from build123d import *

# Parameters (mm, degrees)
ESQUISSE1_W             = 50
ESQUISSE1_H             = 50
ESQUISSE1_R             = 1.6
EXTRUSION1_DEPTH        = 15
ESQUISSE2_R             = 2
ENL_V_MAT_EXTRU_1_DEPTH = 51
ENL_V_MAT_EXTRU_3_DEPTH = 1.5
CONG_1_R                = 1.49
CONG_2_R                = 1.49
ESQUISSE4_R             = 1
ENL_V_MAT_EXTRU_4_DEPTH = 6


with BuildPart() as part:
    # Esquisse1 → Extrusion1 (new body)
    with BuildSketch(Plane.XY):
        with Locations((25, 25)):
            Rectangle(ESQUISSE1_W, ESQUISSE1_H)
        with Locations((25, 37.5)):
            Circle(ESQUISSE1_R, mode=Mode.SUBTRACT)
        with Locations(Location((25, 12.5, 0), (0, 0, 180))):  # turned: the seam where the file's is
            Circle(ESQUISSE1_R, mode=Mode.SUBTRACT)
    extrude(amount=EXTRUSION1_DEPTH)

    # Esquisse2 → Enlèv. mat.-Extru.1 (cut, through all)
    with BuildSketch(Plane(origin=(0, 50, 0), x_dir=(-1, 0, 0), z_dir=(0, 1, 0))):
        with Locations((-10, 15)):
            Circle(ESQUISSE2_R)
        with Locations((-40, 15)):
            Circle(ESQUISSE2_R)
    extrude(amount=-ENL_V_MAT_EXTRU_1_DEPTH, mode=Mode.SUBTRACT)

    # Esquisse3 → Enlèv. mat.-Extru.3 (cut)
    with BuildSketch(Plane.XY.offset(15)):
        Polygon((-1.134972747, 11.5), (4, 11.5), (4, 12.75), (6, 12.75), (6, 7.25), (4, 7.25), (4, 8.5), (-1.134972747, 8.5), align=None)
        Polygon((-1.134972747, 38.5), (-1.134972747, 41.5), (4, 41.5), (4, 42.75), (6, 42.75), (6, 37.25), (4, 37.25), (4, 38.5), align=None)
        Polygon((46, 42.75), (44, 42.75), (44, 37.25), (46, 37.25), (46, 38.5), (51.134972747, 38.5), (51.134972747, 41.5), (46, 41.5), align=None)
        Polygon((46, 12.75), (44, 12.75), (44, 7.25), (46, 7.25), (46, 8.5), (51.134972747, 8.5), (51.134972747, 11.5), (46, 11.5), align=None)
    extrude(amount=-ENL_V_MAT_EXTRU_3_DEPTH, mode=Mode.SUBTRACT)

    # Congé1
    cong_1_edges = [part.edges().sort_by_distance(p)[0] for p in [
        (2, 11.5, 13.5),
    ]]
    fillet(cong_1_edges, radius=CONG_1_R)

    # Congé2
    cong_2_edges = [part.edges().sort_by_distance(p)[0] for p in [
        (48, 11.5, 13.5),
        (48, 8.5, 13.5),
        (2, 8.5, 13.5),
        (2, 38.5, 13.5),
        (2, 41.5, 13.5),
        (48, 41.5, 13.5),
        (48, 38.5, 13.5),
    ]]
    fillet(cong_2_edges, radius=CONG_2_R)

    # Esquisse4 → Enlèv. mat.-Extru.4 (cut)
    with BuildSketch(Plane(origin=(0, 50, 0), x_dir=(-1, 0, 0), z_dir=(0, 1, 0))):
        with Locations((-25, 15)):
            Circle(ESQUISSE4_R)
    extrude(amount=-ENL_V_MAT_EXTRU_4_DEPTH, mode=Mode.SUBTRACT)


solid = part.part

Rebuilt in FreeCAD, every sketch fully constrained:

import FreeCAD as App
import Part
import Sketcher
from FreeCAD import Vector
Q = App.Units.Quantity


def edges_at(feature, points):
    """Names of the edges that pass closest to the given points."""
    edges = feature.Shape.Edges
    near = lambda p: min(range(len(edges)), key=lambda i: edges[i].distToShape(Part.Vertex(*p))[0])
    return sorted({f"Edge{near(p) + 1}" for p in points})

doc = App.newDocument("Part")
body = doc.addObject("PartDesign::Body", "Body")

sketch1 = body.newObject("Sketcher::SketchObject", "Sketch")
sketch1.AttachmentSupport = (doc.getObject("XY_Plane"), [""])
sketch1.MapMode = "FlatFace"
sketch1.addGeometry([
    Part.LineSegment(Vector(0, 50, 0), Vector(0, 0, 0)),
    Part.LineSegment(Vector(0, 0, 0), Vector(50, 0, 0)),
    Part.LineSegment(Vector(50, 0, 0), Vector(50, 50, 0)),
    Part.LineSegment(Vector(50, 50, 0), Vector(0, 50, 0)),
    Part.Circle(Vector(25, 12.5, 0), Vector(0, 0, 1), 1.6),
    Part.Circle(Vector(25, 37.5, 0), Vector(0, 0, 1), 1.6),
], False)
sketch1.addConstraint([
    Sketcher.Constraint("Coincident", 0, 2, 1, 1),
    Sketcher.Constraint("Coincident", 1, 2, 2, 1),
    Sketcher.Constraint("Coincident", 2, 2, 3, 1),
    Sketcher.Constraint("Coincident", 3, 2, 0, 1),
    Sketcher.Constraint("Vertical", 0),
    Sketcher.Constraint("Horizontal", 1),
    Sketcher.Constraint("Vertical", 2),
    Sketcher.Constraint("Horizontal", 3),
    Sketcher.Constraint("Coincident", 0, 2, -1, 1),
    Sketcher.Constraint("Equal", 4, 5),
    Sketcher.Constraint("Vertical", 4, 3, 5, 3),
    Sketcher.Constraint("Equal", 3, 0),
    Sketcher.Constraint("Diameter", 4, Q("3.2 mm")),
    Sketcher.Constraint("DistanceX", 1, 1, 1, 2, Q("50 mm")),
    Sketcher.Constraint("DistanceX", -1, 1, 4, 3, Q("25 mm")),
    Sketcher.Constraint("DistanceY", 4, 3, 5, 3, Q("25 mm")),
    Sketcher.Constraint("DistanceY", -1, 1, 4, 3, Q("12.5 mm")),
])
pad1 = body.newObject("PartDesign::Pad", "Pad")
pad1.Profile = sketch1
pad1.Length = 15

sketch2 = body.newObject("Sketcher::SketchObject", "Sketch001")
sketch2.AttachmentSupport = (doc.getObject("XZ_Plane"), [""])
sketch2.MapMode = "FlatFace"
sketch2.AttachmentOffset = App.Placement(Vector(0, 0, -50), App.Rotation())
sketch2.addGeometry([
    Part.Circle(Vector(10, 15, 0), Vector(0, 0, 1), 2),
    Part.Circle(Vector(40, 15, 0), Vector(0, 0, 1), 2),
], False)
sketch2.addConstraint([
    Sketcher.Constraint("Equal", 0, 1),
    Sketcher.Constraint("Horizontal", 0, 3, 1, 3),
    Sketcher.Constraint("Diameter", 0, Q("4 mm")),
    Sketcher.Constraint("DistanceX", -1, 1, 0, 3, Q("10 mm")),
    Sketcher.Constraint("DistanceY", -1, 1, 0, 3, Q("15 mm")),
    Sketcher.Constraint("DistanceX", -1, 1, 1, 3, Q("40 mm")),
])
pocket1 = body.newObject("PartDesign::Pocket", "Pocket")
pocket1.Profile = sketch2
pocket1.Type = "ThroughAll"
pocket1.Reversed = True

sketch3 = body.newObject("Sketcher::SketchObject", "Sketch002")
sketch3.AttachmentSupport = (doc.getObject("XY_Plane"), [""])
sketch3.MapMode = "FlatFace"
sketch3.AttachmentOffset = App.Placement(Vector(0, 0, 15), App.Rotation())
sketch3.addGeometry([
    Part.LineSegment(Vector(4, 11.5, 0), Vector(-1.1, 11.5, 0)),
    Part.LineSegment(Vector(-1.1, 11.5, 0), Vector(-1.1, 8.5, 0)),
    Part.LineSegment(Vector(-1.1, 8.5, 0), Vector(4, 8.5, 0)),
    Part.LineSegment(Vector(4, 8.5, 0), Vector(4, 7.2, 0)),
    Part.LineSegment(Vector(4, 7.2, 0), Vector(6, 7.2, 0)),
    Part.LineSegment(Vector(6, 7.2, 0), Vector(6, 12.8, 0)),
    Part.LineSegment(Vector(6, 12.8, 0), Vector(4, 12.8, 0)),
    Part.LineSegment(Vector(4, 12.8, 0), Vector(4, 11.5, 0)),
    Part.LineSegment(Vector(-1.1, 41.5, 0), Vector(-1.1, 38.5, 0)),
    Part.LineSegment(Vector(-1.1, 38.5, 0), Vector(4, 38.5, 0)),
    Part.LineSegment(Vector(4, 38.5, 0), Vector(4, 37.2, 0)),
    Part.LineSegment(Vector(4, 37.2, 0), Vector(6, 37.2, 0)),
    Part.LineSegment(Vector(6, 37.2, 0), Vector(6, 42.8, 0)),
    Part.LineSegment(Vector(6, 42.8, 0), Vector(4, 42.8, 0)),
    Part.LineSegment(Vector(4, 42.8, 0), Vector(4, 41.5, 0)),
    Part.LineSegment(Vector(4, 41.5, 0), Vector(-1.1, 41.5, 0)),
    Part.LineSegment(Vector(46, 42.8, 0), Vector(44, 42.8, 0)),
    Part.LineSegment(Vector(44, 42.8, 0), Vector(44, 37.2, 0)),
    Part.LineSegment(Vector(44, 37.2, 0), Vector(46, 37.2, 0)),
    Part.LineSegment(Vector(46, 37.2, 0), Vector(46, 38.5, 0)),
    Part.LineSegment(Vector(46, 38.5, 0), Vector(51.1, 38.5, 0)),
    Part.LineSegment(Vector(51.1, 38.5, 0), Vector(51.1, 41.5, 0)),
    Part.LineSegment(Vector(51.1, 41.5, 0), Vector(46, 41.5, 0)),
    Part.LineSegment(Vector(46, 41.5, 0), Vector(46, 42.8, 0)),
    Part.LineSegment(Vector(46, 12.8, 0), Vector(44, 12.8, 0)),
    Part.LineSegment(Vector(44, 12.8, 0), Vector(44, 7.2, 0)),
    Part.LineSegment(Vector(44, 7.2, 0), Vector(46, 7.2, 0)),
    Part.LineSegment(Vector(46, 7.2, 0), Vector(46, 8.5, 0)),
    Part.LineSegment(Vector(46, 8.5, 0), Vector(51.1, 8.5, 0)),
    Part.LineSegment(Vector(51.1, 8.5, 0), Vector(51.1, 11.5, 0)),
    Part.LineSegment(Vector(51.1, 11.5, 0), Vector(46, 11.5, 0)),
    Part.LineSegment(Vector(46, 11.5, 0), Vector(46, 12.8, 0)),
], False)
sketch3.addConstraint([
    Sketcher.Constraint("Coincident", 0, 2, 1, 1),
    Sketcher.Constraint("Coincident", 1, 2, 2, 1),
    Sketcher.Constraint("Coincident", 2, 2, 3, 1),
    Sketcher.Constraint("Coincident", 3, 2, 4, 1),
    Sketcher.Constraint("Coincident", 4, 2, 5, 1),
    Sketcher.Constraint("Coincident", 5, 2, 6, 1),
    Sketcher.Constraint("Coincident", 6, 2, 7, 1),
    Sketcher.Constraint("Coincident", 7, 2, 0, 1),
    Sketcher.Constraint("Coincident", 8, 2, 9, 1),
    Sketcher.Constraint("Coincident", 9, 2, 10, 1),
    Sketcher.Constraint("Coincident", 10, 2, 11, 1),
    Sketcher.Constraint("Coincident", 11, 2, 12, 1),
    Sketcher.Constraint("Coincident", 12, 2, 13, 1),
    Sketcher.Constraint("Coincident", 13, 2, 14, 1),
    Sketcher.Constraint("Coincident", 14, 2, 15, 1),
    Sketcher.Constraint("Coincident", 15, 2, 8, 1),
    Sketcher.Constraint("Coincident", 16, 2, 17, 1),
    Sketcher.Constraint("Coincident", 17, 2, 18, 1),
    Sketcher.Constraint("Coincident", 18, 2, 19, 1),
    Sketcher.Constraint("Coincident", 19, 2, 20, 1),
    Sketcher.Constraint("Coincident", 20, 2, 21, 1),
    Sketcher.Constraint("Coincident", 21, 2, 22, 1),
    Sketcher.Constraint("Coincident", 22, 2, 23, 1),
    Sketcher.Constraint("Coincident", 23, 2, 16, 1),
    Sketcher.Constraint("Coincident", 24, 2, 25, 1),
    Sketcher.Constraint("Coincident", 25, 2, 26, 1),
    Sketcher.Constraint("Coincident", 26, 2, 27, 1),
    Sketcher.Constraint("Coincident", 27, 2, 28, 1),
    Sketcher.Constraint("Coincident", 28, 2, 29, 1),
    Sketcher.Constraint("Coincident", 29, 2, 30, 1),
    Sketcher.Constraint("Coincident", 30, 2, 31, 1),
    Sketcher.Constraint("Coincident", 31, 2, 24, 1),
    Sketcher.Constraint("Horizontal", 0),
    Sketcher.Constraint("Vertical", 1),
    Sketcher.Constraint("Horizontal", 2),
    Sketcher.Constraint("Vertical", 3),
    Sketcher.Constraint("Horizontal", 4),
    Sketcher.Constraint("Vertical", 5),
    Sketcher.Constraint("Horizontal", 6),
    Sketcher.Constraint("Vertical", 7),
    Sketcher.Constraint("Vertical", 8),
    Sketcher.Constraint("Horizontal", 9),
    Sketcher.Constraint("Vertical", 10),
    Sketcher.Constraint("Horizontal", 11),
    Sketcher.Constraint("Vertical", 12),
    Sketcher.Constraint("Horizontal", 13),
    Sketcher.Constraint("Vertical", 14),
    Sketcher.Constraint("Horizontal", 15),
    Sketcher.Constraint("Horizontal", 16),
    Sketcher.Constraint("Vertical", 17),
    Sketcher.Constraint("Horizontal", 18),
    Sketcher.Constraint("Vertical", 19),
    Sketcher.Constraint("Horizontal", 20),
    Sketcher.Constraint("Vertical", 21),
    Sketcher.Constraint("Horizontal", 22),
    Sketcher.Constraint("Vertical", 23),
    Sketcher.Constraint("Horizontal", 24),
    Sketcher.Constraint("Vertical", 25),
    Sketcher.Constraint("Horizontal", 26),
    Sketcher.Constraint("Vertical", 27),
    Sketcher.Constraint("Horizontal", 28),
    Sketcher.Constraint("Vertical", 29),
    Sketcher.Constraint("Horizontal", 30),
    Sketcher.Constraint("Vertical", 31),
    Sketcher.Constraint("Horizontal", 13, 2, 16, 2),
    Sketcher.Constraint("Horizontal", 11, 2, 17, 2),
    Sketcher.Constraint("Horizontal", 9, 2, 19, 2),
    Sketcher.Constraint("Horizontal", 15, 2, 21, 2),
    Sketcher.Constraint("Horizontal", 6, 2, 24, 2),
    Sketcher.Constraint("Horizontal", 4, 2, 25, 2),
    Sketcher.Constraint("Horizontal", 2, 2, 27, 2),
    Sketcher.Constraint("Horizontal", 7, 2, 29, 2),
    Sketcher.Constraint("Vertical", 3, 2, 6, 2),
    Sketcher.Constraint("Vertical", 1, 2, 8, 2),
    Sketcher.Constraint("Vertical", 7, 2, 9, 2),
    Sketcher.Constraint("Vertical", 5, 2, 11, 2),
    Sketcher.Constraint("Vertical", 10, 2, 13, 2),
    Sketcher.Constraint("Vertical", 19, 2, 22, 2),
    Sketcher.Constraint("Vertical", 17, 2, 24, 2),
    Sketcher.Constraint("Vertical", 23, 2, 26, 2),
    Sketcher.Constraint("Vertical", 21, 2, 28, 2),
    Sketcher.Constraint("Vertical", 27, 2, 30, 2),
    Sketcher.Constraint("Equal", 13, 16),
    Sketcher.Constraint("Equal", 15, 20),
    Sketcher.Constraint("Equal", 3, 7),
    Sketcher.Constraint("Equal", 1, 8),
    Sketcher.Constraint("Equal", 7, 10),
    Sketcher.Constraint("Equal", 5, 12),
    Sketcher.Constraint("DistanceX", 4, 1, 4, 2, Q("2 mm")),
    Sketcher.Constraint("DistanceY", 1, 2, 1, 1, Q("3 mm")),
    Sketcher.Constraint("DistanceY", 5, 1, 5, 2, Q("5.5 mm")),
    Sketcher.Constraint("DistanceX", -1, 1, 2, 2, Q("4 mm")),
    Sketcher.Constraint("DistanceX", -1, 1, 16, 2, Q("44 mm")),
    Sketcher.Constraint("DistanceY", 0, 2, 8, 2, Q("27 mm")),
    Sketcher.Constraint("DistanceY", -1, 1, 0, 2, Q("11.5 mm")),
    Sketcher.Constraint("DistanceX", 0, 2, 0, 1, Q("5.134973 mm")),
])
pocket2 = body.newObject("PartDesign::Pocket", "Pocket001")
pocket2.Profile = sketch3
pocket2.Length = 1.5
doc.recompute()

fillet = body.newObject("PartDesign::Fillet", "Fillet")
fillet.Base = (pocket2, edges_at(pocket2, [(2, 11.5, 13.5)]))
fillet.Radius = 1.49
doc.recompute()

fillet2 = body.newObject("PartDesign::Fillet", "Fillet001")
fillet2.Base = (fillet, edges_at(fillet, [
    (48, 11.5, 13.5),
    (48, 8.5, 13.5),
    (2, 8.5, 13.5),
    (2, 38.5, 13.5),
    (2, 41.5, 13.5),
    (48, 41.5, 13.5),
    (48, 38.5, 13.5),
]))
fillet2.Radius = 1.49

sketch4 = body.newObject("Sketcher::SketchObject", "Sketch003")
sketch4.AttachmentSupport = (doc.getObject("XZ_Plane"), [""])
sketch4.MapMode = "FlatFace"
sketch4.AttachmentOffset = App.Placement(Vector(0, 0, -50), App.Rotation())
sketch4.addGeometry(Part.Circle(Vector(25, 15, 0), Vector(0, 0, 1), 1), False)
sketch4.addConstraint([
    Sketcher.Constraint("Diameter", 0, Q("2 mm")),
    Sketcher.Constraint("DistanceX", -1, 1, 0, 3, Q("25 mm")),
    Sketcher.Constraint("DistanceY", -1, 1, 0, 3, Q("15 mm")),
])
pocket3 = body.newObject("PartDesign::Pocket", "Pocket002")
pocket3.Profile = sketch4
pocket3.Length = 6
pocket3.Reversed = True

doc.recompute()
